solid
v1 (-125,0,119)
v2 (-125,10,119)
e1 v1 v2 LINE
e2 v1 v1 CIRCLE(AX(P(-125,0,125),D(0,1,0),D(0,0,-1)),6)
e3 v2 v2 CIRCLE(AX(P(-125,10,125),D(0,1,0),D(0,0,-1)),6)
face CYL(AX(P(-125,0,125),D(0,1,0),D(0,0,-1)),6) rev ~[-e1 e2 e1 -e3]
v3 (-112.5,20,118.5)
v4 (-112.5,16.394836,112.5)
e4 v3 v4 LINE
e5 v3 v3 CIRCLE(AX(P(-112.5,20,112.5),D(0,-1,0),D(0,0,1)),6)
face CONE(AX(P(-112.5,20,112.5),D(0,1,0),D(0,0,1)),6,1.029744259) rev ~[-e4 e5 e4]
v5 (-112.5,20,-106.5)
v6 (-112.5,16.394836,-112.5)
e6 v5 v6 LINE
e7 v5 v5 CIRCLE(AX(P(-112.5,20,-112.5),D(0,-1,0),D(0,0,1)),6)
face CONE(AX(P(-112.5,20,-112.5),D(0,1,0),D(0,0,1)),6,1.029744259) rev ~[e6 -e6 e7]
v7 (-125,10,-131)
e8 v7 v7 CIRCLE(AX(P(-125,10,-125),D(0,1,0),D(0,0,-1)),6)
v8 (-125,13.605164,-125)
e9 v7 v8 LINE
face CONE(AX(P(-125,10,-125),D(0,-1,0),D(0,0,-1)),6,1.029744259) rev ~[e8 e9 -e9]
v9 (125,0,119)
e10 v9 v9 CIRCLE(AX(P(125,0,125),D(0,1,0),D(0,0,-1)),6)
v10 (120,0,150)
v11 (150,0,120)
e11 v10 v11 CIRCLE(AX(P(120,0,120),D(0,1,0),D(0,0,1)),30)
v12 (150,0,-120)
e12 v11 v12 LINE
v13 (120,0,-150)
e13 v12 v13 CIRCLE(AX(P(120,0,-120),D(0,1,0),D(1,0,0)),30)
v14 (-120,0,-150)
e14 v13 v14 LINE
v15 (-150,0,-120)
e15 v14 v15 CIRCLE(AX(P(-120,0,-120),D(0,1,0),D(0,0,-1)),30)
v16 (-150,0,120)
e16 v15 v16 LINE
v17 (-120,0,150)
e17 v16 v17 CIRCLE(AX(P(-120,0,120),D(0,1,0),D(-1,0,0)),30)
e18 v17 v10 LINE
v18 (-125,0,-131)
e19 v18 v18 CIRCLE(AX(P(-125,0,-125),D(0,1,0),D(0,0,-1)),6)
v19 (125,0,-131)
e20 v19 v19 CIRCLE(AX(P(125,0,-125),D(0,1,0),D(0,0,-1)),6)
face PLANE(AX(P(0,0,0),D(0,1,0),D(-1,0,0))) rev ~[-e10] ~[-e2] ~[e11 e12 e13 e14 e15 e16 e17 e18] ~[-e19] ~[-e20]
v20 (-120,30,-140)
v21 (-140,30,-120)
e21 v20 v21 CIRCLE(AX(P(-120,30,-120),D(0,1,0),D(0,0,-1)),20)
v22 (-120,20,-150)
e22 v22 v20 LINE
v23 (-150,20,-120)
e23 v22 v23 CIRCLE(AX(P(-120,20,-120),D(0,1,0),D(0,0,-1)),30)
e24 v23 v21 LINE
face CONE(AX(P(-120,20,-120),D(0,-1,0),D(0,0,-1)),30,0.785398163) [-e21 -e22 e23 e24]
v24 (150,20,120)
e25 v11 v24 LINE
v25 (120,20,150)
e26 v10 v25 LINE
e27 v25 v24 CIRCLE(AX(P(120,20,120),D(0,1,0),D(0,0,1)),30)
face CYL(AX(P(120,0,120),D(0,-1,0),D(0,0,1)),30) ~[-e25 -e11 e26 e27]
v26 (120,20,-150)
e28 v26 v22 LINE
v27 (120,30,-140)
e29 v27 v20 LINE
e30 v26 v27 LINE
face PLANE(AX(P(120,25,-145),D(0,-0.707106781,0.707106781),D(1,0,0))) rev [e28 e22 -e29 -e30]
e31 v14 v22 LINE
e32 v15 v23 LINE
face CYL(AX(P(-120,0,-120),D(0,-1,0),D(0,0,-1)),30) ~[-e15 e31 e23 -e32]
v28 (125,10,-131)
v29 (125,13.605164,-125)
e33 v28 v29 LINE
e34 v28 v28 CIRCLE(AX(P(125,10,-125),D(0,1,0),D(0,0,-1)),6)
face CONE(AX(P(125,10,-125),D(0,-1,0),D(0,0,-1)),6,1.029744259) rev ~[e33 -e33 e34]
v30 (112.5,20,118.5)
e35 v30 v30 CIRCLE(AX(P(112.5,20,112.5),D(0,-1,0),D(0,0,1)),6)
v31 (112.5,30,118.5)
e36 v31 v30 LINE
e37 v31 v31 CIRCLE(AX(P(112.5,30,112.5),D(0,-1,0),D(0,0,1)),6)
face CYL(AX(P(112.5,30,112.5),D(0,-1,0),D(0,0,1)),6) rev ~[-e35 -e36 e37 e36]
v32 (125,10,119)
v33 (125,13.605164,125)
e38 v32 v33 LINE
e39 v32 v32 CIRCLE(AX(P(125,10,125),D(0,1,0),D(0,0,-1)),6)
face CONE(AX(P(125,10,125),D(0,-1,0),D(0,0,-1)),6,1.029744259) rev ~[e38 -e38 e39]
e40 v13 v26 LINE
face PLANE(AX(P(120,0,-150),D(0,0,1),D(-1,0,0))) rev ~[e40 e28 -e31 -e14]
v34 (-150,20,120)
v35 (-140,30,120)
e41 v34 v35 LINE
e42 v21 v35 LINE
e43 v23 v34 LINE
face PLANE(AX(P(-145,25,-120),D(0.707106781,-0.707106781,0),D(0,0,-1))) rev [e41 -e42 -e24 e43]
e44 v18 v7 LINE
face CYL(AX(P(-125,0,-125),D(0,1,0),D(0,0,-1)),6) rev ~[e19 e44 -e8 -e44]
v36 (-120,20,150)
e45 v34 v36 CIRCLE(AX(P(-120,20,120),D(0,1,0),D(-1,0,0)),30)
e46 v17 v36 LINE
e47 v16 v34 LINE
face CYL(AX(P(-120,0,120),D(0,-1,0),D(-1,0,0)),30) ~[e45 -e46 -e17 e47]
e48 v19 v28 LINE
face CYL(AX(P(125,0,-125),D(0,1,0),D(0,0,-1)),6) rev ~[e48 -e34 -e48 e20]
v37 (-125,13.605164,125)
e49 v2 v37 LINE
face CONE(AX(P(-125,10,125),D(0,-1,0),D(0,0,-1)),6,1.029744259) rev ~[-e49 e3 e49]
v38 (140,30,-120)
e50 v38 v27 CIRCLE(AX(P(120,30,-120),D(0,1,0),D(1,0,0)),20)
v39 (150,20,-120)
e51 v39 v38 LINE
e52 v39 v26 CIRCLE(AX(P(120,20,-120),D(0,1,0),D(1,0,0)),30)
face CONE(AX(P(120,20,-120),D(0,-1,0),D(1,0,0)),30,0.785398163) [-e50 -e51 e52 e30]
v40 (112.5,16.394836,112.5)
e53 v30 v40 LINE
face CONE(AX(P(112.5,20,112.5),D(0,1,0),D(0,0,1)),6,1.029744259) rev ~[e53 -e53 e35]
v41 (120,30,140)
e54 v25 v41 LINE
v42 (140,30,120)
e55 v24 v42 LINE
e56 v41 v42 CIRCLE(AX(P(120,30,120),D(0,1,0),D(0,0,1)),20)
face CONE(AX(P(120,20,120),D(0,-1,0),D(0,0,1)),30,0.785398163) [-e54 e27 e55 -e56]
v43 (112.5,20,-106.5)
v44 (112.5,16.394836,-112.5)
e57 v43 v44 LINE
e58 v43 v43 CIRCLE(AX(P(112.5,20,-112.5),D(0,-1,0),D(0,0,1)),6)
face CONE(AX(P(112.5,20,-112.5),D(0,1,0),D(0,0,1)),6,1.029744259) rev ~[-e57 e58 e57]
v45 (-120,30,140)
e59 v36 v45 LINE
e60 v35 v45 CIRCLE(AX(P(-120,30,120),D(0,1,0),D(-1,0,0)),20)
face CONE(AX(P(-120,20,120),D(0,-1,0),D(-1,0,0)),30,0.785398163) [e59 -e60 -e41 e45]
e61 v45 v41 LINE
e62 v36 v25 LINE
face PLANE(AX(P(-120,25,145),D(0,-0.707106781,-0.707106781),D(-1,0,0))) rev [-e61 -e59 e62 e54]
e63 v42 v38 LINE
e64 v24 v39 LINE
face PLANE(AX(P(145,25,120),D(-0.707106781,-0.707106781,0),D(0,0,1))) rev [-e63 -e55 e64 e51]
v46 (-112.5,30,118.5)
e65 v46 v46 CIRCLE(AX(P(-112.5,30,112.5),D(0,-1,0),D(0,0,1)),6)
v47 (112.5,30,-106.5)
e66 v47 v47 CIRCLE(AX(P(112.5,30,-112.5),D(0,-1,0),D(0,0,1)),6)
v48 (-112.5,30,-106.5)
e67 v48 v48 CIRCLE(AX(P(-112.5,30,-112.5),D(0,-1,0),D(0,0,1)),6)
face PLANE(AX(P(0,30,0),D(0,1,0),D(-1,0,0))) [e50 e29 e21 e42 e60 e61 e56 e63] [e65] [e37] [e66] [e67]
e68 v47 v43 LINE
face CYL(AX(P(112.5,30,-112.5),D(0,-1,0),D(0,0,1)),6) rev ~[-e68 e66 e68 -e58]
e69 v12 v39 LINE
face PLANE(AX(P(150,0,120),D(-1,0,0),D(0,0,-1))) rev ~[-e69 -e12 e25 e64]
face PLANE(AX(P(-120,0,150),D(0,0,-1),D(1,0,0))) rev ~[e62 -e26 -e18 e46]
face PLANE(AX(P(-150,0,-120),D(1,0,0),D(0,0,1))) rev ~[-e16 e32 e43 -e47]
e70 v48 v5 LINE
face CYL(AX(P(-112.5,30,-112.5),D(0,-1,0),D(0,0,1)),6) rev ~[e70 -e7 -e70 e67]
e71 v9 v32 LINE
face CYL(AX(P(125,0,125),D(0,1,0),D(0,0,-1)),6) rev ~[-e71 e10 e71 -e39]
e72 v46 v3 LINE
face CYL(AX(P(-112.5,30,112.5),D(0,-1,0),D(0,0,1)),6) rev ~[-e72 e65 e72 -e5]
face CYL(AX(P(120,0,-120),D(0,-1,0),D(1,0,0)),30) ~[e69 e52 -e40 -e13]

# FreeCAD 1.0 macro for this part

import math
import FreeCAD as App
import Part
import Sketcher
from FreeCAD import Vector
Q = App.Units.Quantity


def edges_at(feature, points):
    """Names of the edges that pass closest to the given points."""
    edges = feature.Shape.Edges
    near = lambda p: min(range(len(edges)), key=lambda i: edges[i].distToShape(Part.Vertex(*p))[0])
    return sorted({f"Edge{near(p) + 1}" for p in points})

doc = App.newDocument("Part")
body = doc.addObject("PartDesign::Body", "Body")

# Sketch on XZ plane
sketch1 = body.newObject("Sketcher::SketchObject", "Sketch")
sketch1.AttachmentSupport = (doc.getObject("XZ_Plane"), [""])
sketch1.MapMode = "FlatFace"
sketch1.addGeometry(Part.ArcOfCircle(Part.Circle(Vector(-120, 120, 0), Vector(0, 0, 1), 30), math.radians(90), math.radians(180)), False)
sketch1.addGeometry(Part.LineSegment(Vector(-120, 150, 0), Vector(120, 150, 0)), False)
sketch1.addGeometry(Part.ArcOfCircle(Part.Circle(Vector(120, 120, 0), Vector(0, 0, 1), 30), math.radians(0), math.radians(90)), False)
sketch1.addGeometry(Part.LineSegment(Vector(150, 120, 0), Vector(150, -120, 0)), False)
sketch1.addGeometry(Part.ArcOfCircle(Part.Circle(Vector(120, -120, 0), Vector(0, 0, 1), 30), math.radians(-90), math.radians(0)), False)
sketch1.addGeometry(Part.LineSegment(Vector(120, -150, 0), Vector(-120, -150, 0)), False)
sketch1.addGeometry(Part.ArcOfCircle(Part.Circle(Vector(-120, -120, 0), Vector(0, 0, 1), 30), math.radians(180), math.radians(270)), False)
sketch1.addGeometry(Part.LineSegment(Vector(-150, -120, 0), Vector(-150, 120, 0)), False)
sketch1.addConstraint(Sketcher.Constraint("Tangent", 0, 1, 1, 1))
sketch1.addConstraint(Sketcher.Constraint("Tangent", 1, 2, 2, 2))
sketch1.addConstraint(Sketcher.Constraint("Tangent", 2, 1, 3, 1))
sketch1.addConstraint(Sketcher.Constraint("Tangent", 3, 2, 4, 2))
sketch1.addConstraint(Sketcher.Constraint("Tangent", 4, 1, 5, 1))
sketch1.addConstraint(Sketcher.Constraint("Tangent", 5, 2, 6, 2))
sketch1.addConstraint(Sketcher.Constraint("Tangent", 6, 1, 7, 1))
sketch1.addConstraint(Sketcher.Constraint("Tangent", 7, 2, 0, 2))
sketch1.addConstraint(Sketcher.Constraint("Horizontal", 1))
sketch1.addConstraint(Sketcher.Constraint("Vertical", 3))
sketch1.addConstraint(Sketcher.Constraint("Horizontal", 5))
sketch1.addConstraint(Sketcher.Constraint("Vertical", 7))
sketch1.addConstraint(Sketcher.Constraint("Equal", 0, 2))
sketch1.addConstraint(Sketcher.Constraint("Equal", 2, 4))
sketch1.addConstraint(Sketcher.Constraint("Equal", 4, 6))
sketch1.addConstraint(Sketcher.Constraint("Symmetric", 0, 3, 4, 3, -1, 1))
sketch1.addConstraint(Sketcher.Constraint("Equal", 5, 3))
sketch1.addConstraint(Sketcher.Constraint("Radius", 0, Q("30 mm")))
sketch1.addConstraint(Sketcher.Constraint("DistanceX", 1, 1, 1, 2, Q("240 mm")))
pad1 = body.newObject("PartDesign::Pad", "Pad")
pad1.Profile = sketch1
pad1.Length = 30
pad1.Reversed = True
doc.recompute()

chamfer = body.newObject("PartDesign::Chamfer", "Chamfer")
chamfer.Base = (pad1, edges_at(pad1, [
    (150, 30, 0),
    (141.213, 30, -141.213),
    (0, 30, -150),
    (-141.213, 30, -141.213),
    (-150, 30, 0),
    (-141.213, 30, 141.213),
    (0, 30, 150),
    (141.213, 30, 141.213),
]))
chamfer.Size = 10

# Sketch on XZ plane
sketch2 = body.newObject("Sketcher::SketchObject", "Sketch001")
sketch2.AttachmentSupport = (doc.getObject("XZ_Plane"), [""])
sketch2.MapMode = "FlatFace"
sketch2.AttachmentOffset = App.Placement(Vector(0, 0, -30), App.Rotation())
sketch2.addGeometry(Part.Circle(Vector(-112, 112, 0), Vector(0, 0, 1), 6), False)
sketch2.addGeometry(Part.Circle(Vector(112, 112, 0), Vector(0, 0, 1), 6), False)
sketch2.addGeometry(Part.Circle(Vector(112, -112, 0), Vector(0, 0, 1), 6), False)
sketch2.addGeometry(Part.Circle(Vector(-112, -112, 0), Vector(0, 0, 1), 6), False)
sketch2.addConstraint(Sketcher.Constraint("Equal", 0, 1))
sketch2.addConstraint(Sketcher.Constraint("Equal", 1, 2))
sketch2.addConstraint(Sketcher.Constraint("Equal", 2, 3))
sketch2.addConstraint(Sketcher.Constraint("Symmetric", 0, 3, 2, 3, -1, 1))
sketch2.addConstraint(Sketcher.Constraint("Symmetric", 1, 3, 3, 3, -1, 1))
sketch2.addConstraint(Sketcher.Constraint("Symmetric", 0, 3, 1, 3, -2))
sketch2.addConstraint(Sketcher.Constraint("Diameter", 0, Q("12 mm")))
sketch2.addConstraint(Sketcher.Constraint("DistanceX", 0, 3, 1, 3, Q("225 mm")))
sketch2.addConstraint(Sketcher.Constraint("DistanceY", 2, 3, 1, 3, Q("225 mm")))
doc.recompute()
hole = body.newObject("PartDesign::Hole", "Hole")
hole.Profile = sketch2
hole.ThreadType = "None"
hole.Diameter = 12
hole.DepthType = "Dimension"
hole.Depth = 10
hole.DrillPoint = "Angled"
hole.DrillPointAngle = 118
hole.Reversed = True

# Sketch on XZ plane
sketch3 = body.newObject("Sketcher::SketchObject", "Sketch002")
sketch3.AttachmentSupport = (doc.getObject("XZ_Plane"), [""])
sketch3.MapMode = "FlatFace"
sketch3.addGeometry(Part.Circle(Vector(125, 125, 0), Vector(0, 0, 1), 6), False)
sketch3.addGeometry(Part.Circle(Vector(-125, 125, 0), Vector(0, 0, 1), 6), False)
sketch3.addGeometry(Part.Circle(Vector(-125, -125, 0), Vector(0, 0, 1), 6), False)
sketch3.addGeometry(Part.Circle(Vector(125, -125, 0), Vector(0, 0, 1), 6), False)
sketch3.addConstraint(Sketcher.Constraint("Equal", 0, 1))
sketch3.addConstraint(Sketcher.Constraint("Equal", 1, 2))
sketch3.addConstraint(Sketcher.Constraint("Equal", 2, 3))
sketch3.addConstraint(Sketcher.Constraint("Symmetric", 0, 3, 2, 3, -1, 1))
sketch3.addConstraint(Sketcher.Constraint("Symmetric", 1, 3, 3, 3, -1, 1))
sketch3.addConstraint(Sketcher.Constraint("Symmetric", 0, 3, 1, 3, -2))
sketch3.addConstraint(Sketcher.Constraint("Diameter", 0, Q("12 mm")))
sketch3.addConstraint(Sketcher.Constraint("DistanceX", -1, 1, 0, 3, Q("125 mm")))
sketch3.addConstraint(Sketcher.Constraint("DistanceY", -1, 1, 0, 3, Q("125 mm")))
doc.recompute()
hole2 = body.newObject("PartDesign::Hole", "Hole001")
hole2.Profile = sketch3
hole2.ThreadType = "None"
hole2.Diameter = 12
hole2.DepthType = "Dimension"
hole2.Depth = 10
hole2.DrillPoint = "Angled"
hole2.DrillPointAngle = 118

doc.recompute()
